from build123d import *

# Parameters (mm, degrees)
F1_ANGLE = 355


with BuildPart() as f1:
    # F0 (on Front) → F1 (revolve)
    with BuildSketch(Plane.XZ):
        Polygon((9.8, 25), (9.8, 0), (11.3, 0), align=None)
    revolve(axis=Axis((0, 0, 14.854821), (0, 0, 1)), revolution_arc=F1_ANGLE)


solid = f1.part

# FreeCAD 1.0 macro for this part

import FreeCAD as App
import Part
import Sketcher
from FreeCAD import Vector
Q = App.Units.Quantity

doc = App.newDocument("Part")
params = doc.addObject("Spreadsheet::Sheet", "Params")
for row, (alias, value) in enumerate([
    ("sketch1_height", "25 mm"),
    ("sketch1_width", "1.5 mm"),
    ("revolution_angle", "355 deg"),
], start=1):
    params.set(f"A{row}", alias)
    params.set(f"B{row}", "=" + value)
    params.setAlias(f"B{row}", alias)

body = doc.addObject("PartDesign::Body", "Body")

# Sketch on XZ plane
sketch1 = body.newObject("Sketcher::SketchObject", "Sketch")
sketch1.AttachmentSupport = (doc.getObject("XZ_Plane"), [""])
sketch1.MapMode = "FlatFace"
sketch1.addGeometry(Part.LineSegment(Vector(9.8, 25, 0), Vector(9.8, 0, 0)), False)
sketch1.addGeometry(Part.LineSegment(Vector(9.8, 0, 0), Vector(11.3, 0, 0)), False)
sketch1.addGeometry(Part.LineSegment(Vector(11.3, 0, 0), Vector(9.8, 25, 0)), False)
sketch1.addConstraint(Sketcher.Constraint("Coincident", 0, 2, 1, 1))
sketch1.addConstraint(Sketcher.Constraint("Coincident", 1, 2, 2, 1))
sketch1.addConstraint(Sketcher.Constraint("Coincident", 2, 2, 0, 1))
sketch1.addConstraint(Sketcher.Constraint("Vertical", 0))
sketch1.addConstraint(Sketcher.Constraint("Horizontal", 1))
sketch1.addConstraint(Sketcher.Constraint("PointOnObject", 0, 2, -1))
sketch1.addConstraint(Sketcher.Constraint("DistanceY", 0, 2, 0, 1, Q("25 mm")))
sketch1.addConstraint(Sketcher.Constraint("DistanceX", 1, 1, 1, 2, Q("1.5 mm")))
sketch1.addConstraint(Sketcher.Constraint("DistanceX", -1, 1, 0, 2, Q("9.8 mm")))
sketch1.setExpression("Constraints[6]", "Params.sketch1_height")
sketch1.setExpression("Constraints[7]", "Params.sketch1_width")
revolution = body.newObject("PartDesign::Revolution", "Revolution")
revolution.Profile = sketch1
revolution.ReferenceAxis = (sketch1, ["V_Axis"])
revolution.setExpression("Angle", "Params.revolution_angle")

doc.recompute()
